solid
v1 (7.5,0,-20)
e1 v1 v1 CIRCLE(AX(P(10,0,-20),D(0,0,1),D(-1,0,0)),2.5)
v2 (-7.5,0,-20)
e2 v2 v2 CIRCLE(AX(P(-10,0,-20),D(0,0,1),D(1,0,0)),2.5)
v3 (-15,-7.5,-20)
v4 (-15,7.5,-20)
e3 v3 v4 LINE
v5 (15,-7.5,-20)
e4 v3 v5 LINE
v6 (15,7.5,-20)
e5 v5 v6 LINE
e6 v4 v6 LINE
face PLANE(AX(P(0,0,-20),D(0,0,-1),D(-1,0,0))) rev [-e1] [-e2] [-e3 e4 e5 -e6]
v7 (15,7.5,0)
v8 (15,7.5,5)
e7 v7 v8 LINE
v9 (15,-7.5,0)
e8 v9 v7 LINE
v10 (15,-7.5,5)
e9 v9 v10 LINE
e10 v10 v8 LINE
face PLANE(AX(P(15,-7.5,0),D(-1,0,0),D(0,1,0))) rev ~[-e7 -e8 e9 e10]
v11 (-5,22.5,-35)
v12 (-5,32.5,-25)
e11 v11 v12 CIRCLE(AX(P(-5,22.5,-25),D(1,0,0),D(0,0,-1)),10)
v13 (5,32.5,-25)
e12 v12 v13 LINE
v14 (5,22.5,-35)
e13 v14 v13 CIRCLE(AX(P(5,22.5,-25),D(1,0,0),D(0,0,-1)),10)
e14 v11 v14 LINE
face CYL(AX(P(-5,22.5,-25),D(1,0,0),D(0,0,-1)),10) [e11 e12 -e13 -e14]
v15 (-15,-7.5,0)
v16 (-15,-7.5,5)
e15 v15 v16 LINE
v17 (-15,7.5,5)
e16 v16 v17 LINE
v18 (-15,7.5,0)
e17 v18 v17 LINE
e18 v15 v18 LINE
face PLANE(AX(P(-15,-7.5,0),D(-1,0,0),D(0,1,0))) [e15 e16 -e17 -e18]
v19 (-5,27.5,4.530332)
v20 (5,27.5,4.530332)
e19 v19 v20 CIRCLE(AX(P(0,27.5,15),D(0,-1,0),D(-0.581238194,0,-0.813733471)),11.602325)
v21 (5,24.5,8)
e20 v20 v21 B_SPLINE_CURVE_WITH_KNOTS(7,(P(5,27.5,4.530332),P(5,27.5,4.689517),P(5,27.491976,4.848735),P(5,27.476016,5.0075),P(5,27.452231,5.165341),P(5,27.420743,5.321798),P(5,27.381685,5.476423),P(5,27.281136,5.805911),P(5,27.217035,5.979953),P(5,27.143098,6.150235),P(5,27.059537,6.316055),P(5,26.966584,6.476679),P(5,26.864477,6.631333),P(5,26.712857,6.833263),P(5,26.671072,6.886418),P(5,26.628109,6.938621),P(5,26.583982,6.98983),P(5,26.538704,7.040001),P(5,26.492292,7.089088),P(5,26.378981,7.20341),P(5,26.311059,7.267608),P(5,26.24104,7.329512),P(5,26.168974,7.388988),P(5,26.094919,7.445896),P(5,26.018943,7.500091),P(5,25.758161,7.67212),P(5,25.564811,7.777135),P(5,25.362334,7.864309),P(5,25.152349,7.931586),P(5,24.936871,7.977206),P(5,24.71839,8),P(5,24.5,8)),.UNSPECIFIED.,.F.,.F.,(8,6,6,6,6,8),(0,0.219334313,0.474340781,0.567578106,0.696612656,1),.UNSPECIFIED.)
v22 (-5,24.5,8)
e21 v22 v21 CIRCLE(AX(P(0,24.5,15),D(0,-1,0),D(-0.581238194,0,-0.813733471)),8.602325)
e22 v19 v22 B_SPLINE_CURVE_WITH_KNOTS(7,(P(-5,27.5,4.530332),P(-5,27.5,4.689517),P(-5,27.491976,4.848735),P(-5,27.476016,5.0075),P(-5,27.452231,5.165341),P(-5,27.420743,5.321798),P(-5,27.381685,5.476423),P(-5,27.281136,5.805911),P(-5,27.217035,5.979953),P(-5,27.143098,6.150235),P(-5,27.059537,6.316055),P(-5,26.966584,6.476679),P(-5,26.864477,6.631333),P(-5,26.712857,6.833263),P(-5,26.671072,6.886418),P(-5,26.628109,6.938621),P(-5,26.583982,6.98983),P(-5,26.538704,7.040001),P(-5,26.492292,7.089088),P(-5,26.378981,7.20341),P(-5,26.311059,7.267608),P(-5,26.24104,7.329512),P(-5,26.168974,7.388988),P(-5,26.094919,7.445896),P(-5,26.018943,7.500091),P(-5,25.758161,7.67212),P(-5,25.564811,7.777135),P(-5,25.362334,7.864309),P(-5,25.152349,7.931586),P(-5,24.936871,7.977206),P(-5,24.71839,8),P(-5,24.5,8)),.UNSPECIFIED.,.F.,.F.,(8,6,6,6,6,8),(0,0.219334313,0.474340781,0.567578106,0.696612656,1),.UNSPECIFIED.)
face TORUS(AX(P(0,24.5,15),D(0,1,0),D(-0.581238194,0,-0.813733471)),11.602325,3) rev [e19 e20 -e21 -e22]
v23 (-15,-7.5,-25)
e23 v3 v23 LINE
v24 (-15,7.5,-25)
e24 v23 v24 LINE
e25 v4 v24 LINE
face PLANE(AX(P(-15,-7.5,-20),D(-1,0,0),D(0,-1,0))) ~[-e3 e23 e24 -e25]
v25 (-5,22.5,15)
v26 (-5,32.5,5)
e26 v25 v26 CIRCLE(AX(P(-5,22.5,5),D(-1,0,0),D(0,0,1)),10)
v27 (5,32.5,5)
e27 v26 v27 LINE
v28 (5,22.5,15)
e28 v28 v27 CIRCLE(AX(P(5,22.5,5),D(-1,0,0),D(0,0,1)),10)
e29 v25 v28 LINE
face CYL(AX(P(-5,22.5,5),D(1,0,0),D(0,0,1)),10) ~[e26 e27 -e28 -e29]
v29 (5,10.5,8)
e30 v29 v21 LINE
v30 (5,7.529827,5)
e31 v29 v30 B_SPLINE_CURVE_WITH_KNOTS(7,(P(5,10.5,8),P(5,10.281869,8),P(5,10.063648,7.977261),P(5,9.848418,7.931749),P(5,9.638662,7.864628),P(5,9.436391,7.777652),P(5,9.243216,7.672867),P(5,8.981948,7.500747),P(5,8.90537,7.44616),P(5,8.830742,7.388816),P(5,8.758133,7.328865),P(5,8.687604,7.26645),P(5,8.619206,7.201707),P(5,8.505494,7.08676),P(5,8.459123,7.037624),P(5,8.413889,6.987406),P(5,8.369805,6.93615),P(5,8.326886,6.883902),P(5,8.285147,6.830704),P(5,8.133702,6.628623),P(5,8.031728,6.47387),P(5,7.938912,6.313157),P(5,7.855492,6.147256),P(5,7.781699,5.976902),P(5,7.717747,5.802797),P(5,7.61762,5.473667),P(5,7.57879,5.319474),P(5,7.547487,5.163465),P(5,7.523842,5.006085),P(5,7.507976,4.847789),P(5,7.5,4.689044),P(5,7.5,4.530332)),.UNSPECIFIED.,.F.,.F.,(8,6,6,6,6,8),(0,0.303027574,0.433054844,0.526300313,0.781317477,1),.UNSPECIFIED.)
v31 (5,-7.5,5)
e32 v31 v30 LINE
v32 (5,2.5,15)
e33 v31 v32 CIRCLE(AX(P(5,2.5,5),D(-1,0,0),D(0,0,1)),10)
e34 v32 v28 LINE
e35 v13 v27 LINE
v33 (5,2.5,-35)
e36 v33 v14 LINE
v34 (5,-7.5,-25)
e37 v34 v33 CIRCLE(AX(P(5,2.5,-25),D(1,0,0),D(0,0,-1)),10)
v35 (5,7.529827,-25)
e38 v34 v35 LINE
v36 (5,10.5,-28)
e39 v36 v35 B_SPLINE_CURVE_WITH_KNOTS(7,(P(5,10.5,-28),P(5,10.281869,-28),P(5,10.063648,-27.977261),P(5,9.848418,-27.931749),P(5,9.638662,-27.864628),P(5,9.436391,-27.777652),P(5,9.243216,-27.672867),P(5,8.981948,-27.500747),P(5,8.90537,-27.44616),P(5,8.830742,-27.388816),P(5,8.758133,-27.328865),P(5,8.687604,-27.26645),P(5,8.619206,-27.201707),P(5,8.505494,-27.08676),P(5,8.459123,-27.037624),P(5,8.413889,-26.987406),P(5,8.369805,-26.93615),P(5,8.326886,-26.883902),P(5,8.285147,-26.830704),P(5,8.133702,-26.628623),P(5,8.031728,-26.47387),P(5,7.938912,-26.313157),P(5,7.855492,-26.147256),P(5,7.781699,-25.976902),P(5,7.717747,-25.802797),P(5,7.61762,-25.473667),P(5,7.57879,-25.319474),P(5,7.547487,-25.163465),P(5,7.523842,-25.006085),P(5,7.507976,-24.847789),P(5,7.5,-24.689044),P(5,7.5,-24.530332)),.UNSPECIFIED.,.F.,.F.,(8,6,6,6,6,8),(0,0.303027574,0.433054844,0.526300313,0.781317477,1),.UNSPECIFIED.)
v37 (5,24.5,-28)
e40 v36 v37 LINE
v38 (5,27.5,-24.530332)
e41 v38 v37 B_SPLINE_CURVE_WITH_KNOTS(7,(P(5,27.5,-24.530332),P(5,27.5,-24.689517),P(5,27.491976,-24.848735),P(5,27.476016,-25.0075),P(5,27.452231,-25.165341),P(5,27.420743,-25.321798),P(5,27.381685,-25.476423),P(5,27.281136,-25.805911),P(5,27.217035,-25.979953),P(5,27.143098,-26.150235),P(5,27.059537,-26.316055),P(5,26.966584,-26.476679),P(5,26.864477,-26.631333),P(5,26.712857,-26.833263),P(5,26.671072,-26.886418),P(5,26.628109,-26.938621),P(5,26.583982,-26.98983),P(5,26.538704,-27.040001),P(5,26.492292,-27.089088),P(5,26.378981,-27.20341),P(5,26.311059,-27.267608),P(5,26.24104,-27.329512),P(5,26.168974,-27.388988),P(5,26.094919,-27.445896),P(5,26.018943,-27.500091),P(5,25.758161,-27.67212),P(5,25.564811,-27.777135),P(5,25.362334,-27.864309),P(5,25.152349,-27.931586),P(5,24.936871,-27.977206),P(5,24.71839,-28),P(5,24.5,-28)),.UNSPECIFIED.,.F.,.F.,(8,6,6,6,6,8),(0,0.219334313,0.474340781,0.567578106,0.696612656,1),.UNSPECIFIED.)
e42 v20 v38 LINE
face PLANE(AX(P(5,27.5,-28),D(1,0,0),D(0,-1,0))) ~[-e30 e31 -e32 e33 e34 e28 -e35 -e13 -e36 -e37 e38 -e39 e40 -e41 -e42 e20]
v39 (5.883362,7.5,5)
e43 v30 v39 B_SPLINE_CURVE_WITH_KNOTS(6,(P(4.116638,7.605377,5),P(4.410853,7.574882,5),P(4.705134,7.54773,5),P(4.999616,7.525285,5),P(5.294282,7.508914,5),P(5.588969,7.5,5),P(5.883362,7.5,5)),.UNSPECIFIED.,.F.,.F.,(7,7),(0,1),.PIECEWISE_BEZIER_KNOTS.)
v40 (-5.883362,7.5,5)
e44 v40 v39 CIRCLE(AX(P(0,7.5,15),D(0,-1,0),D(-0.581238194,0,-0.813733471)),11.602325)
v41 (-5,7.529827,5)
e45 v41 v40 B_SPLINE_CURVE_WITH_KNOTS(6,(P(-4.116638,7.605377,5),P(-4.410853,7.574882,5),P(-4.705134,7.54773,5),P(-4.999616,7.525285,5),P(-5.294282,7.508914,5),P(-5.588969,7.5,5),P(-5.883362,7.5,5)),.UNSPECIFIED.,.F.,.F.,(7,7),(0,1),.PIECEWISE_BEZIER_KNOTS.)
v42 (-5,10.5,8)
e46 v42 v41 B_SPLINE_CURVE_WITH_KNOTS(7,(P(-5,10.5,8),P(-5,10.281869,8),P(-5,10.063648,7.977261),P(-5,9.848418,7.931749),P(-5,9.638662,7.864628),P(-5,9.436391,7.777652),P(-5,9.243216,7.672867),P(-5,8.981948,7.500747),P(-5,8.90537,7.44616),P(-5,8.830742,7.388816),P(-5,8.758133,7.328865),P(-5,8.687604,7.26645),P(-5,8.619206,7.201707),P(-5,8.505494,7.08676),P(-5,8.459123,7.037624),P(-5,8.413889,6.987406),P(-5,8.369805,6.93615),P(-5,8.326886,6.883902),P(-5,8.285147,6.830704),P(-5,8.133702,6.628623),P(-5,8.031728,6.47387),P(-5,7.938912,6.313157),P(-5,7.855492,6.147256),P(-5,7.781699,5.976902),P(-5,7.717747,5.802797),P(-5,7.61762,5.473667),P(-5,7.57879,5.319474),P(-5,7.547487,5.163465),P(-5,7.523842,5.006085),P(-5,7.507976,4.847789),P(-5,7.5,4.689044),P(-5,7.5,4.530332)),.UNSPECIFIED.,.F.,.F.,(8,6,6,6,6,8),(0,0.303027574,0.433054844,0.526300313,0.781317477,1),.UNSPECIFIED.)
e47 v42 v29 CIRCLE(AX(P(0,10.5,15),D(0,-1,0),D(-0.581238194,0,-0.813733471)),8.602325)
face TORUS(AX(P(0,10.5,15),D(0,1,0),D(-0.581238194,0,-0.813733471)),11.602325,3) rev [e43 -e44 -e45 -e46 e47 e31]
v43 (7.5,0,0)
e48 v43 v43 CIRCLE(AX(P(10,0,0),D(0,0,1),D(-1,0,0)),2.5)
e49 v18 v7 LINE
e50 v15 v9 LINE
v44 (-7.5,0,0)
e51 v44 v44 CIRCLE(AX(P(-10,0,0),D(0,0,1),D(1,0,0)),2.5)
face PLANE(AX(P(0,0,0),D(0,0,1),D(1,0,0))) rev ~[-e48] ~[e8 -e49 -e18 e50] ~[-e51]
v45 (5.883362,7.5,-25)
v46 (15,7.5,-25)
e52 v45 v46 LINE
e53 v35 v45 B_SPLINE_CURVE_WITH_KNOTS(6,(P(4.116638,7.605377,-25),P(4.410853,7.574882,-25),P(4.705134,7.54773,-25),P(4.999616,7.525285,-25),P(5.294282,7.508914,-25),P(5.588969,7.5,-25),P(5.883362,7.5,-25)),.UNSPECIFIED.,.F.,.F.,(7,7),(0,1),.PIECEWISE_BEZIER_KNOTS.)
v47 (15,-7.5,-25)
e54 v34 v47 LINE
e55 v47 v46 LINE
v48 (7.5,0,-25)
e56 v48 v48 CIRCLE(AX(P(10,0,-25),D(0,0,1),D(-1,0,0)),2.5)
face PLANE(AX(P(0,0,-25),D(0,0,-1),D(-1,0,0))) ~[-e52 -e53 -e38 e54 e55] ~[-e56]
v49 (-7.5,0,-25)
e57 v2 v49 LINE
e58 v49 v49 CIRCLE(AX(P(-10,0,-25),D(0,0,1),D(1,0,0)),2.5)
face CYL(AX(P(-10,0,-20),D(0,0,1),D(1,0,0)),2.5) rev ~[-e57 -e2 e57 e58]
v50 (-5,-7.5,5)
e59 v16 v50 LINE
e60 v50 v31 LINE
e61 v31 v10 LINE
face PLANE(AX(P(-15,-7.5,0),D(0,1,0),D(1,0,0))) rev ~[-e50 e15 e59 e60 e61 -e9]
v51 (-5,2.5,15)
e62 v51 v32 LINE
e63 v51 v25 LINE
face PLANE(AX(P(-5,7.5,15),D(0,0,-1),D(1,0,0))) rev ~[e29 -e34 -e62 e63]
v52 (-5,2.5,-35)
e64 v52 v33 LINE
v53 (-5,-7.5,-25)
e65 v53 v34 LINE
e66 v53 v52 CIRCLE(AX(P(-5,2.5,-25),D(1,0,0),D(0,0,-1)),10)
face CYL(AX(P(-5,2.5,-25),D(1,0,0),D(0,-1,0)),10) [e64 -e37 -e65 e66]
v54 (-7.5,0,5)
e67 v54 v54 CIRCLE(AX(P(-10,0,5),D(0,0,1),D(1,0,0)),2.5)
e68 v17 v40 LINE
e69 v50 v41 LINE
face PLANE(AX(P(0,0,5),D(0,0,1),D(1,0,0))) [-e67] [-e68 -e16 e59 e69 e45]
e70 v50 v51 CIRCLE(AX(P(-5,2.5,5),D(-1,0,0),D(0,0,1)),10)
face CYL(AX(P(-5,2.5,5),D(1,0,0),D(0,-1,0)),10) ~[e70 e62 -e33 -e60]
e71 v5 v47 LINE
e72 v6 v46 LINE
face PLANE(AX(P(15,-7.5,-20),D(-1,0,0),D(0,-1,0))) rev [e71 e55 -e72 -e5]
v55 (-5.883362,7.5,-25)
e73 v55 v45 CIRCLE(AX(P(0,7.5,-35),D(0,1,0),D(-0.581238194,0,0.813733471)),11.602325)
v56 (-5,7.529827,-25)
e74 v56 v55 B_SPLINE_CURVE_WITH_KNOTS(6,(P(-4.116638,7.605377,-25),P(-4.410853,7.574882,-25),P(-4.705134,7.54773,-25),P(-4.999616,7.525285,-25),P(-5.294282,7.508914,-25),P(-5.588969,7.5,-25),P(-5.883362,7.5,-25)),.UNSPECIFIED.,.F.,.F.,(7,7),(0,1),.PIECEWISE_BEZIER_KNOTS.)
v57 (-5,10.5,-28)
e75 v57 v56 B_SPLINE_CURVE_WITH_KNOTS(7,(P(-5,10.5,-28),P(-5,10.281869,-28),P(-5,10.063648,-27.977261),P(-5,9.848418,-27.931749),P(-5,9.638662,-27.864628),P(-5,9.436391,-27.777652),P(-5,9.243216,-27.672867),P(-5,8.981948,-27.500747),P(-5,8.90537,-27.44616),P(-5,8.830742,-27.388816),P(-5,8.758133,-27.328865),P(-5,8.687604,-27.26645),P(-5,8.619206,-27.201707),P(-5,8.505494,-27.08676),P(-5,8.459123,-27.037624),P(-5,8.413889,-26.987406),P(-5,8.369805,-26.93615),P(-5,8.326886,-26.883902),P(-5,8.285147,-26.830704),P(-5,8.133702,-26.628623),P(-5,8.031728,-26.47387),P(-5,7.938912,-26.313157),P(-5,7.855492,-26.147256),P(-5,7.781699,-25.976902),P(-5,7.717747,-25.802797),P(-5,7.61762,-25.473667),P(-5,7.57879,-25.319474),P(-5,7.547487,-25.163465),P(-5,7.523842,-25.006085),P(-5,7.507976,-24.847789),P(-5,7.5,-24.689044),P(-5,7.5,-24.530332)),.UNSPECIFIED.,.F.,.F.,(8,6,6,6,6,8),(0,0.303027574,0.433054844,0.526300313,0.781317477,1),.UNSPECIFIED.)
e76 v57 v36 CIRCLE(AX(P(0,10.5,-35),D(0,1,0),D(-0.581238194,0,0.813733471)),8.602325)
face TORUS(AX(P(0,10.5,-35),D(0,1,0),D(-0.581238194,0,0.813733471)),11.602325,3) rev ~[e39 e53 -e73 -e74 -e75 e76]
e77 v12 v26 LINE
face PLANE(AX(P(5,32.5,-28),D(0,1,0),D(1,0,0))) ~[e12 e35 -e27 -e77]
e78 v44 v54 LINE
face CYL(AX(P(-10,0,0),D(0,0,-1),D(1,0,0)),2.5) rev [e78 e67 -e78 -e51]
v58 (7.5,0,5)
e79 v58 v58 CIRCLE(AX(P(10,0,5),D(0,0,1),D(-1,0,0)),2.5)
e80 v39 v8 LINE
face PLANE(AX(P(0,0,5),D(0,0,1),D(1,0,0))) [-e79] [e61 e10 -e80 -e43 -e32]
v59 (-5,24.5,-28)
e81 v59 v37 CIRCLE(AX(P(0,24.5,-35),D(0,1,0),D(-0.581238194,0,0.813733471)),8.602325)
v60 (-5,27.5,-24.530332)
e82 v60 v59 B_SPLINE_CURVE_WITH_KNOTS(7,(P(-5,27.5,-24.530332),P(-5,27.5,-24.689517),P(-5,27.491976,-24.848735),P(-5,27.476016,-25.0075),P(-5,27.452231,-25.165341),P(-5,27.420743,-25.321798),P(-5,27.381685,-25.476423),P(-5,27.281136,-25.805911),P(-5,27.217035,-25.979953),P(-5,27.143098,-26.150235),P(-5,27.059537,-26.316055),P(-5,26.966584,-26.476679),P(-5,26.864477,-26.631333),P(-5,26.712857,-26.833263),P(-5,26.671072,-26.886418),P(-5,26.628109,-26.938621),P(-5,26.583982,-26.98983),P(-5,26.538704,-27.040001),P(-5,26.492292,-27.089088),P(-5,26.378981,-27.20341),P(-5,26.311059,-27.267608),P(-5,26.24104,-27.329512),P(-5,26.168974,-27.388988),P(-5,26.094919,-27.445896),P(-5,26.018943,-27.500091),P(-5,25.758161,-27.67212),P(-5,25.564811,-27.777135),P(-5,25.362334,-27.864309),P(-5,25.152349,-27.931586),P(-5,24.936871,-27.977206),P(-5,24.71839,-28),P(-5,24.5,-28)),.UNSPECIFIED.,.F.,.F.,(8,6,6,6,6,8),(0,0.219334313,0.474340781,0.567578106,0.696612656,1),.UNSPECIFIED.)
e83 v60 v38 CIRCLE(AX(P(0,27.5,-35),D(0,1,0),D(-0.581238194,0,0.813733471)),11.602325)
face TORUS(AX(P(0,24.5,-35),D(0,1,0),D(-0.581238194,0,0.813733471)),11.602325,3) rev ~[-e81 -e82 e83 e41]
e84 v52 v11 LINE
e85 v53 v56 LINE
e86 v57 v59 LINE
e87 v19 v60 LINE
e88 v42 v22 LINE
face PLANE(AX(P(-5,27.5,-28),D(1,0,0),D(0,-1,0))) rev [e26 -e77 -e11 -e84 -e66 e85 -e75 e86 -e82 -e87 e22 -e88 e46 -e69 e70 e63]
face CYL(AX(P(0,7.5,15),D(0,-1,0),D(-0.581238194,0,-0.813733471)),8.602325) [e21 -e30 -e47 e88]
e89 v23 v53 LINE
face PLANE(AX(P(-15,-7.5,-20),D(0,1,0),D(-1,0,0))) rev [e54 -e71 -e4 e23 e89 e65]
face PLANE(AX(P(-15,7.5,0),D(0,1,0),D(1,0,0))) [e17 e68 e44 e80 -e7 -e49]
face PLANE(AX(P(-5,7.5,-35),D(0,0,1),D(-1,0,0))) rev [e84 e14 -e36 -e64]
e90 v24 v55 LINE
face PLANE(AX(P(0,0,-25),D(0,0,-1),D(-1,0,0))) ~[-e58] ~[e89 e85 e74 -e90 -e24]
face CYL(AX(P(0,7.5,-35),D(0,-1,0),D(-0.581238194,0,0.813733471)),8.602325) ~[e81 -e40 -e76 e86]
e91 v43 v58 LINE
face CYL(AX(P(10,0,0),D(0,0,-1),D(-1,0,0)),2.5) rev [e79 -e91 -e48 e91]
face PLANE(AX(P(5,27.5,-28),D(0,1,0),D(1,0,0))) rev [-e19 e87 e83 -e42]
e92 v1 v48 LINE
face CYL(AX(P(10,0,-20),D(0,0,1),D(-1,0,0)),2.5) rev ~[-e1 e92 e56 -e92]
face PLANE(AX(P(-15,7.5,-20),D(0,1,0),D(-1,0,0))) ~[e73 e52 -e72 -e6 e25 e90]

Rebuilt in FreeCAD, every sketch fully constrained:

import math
import FreeCAD as App
import Part
import Sketcher
Q = App.Units.Quantity


def edges_at(feature, points):
    """Names of the edges that pass closest to the given points."""
    edges = feature.Shape.Edges
    near = lambda p: min(range(len(edges)), key=lambda i: edges[i].distToShape(Part.Vertex(*p))[0])
    return sorted({f"Edge{near(p) + 1}" for p in points})

doc = App.newDocument("Part")
body = doc.addObject("PartDesign::Body", "Body")

# Sketch on XY plane
sketch1 = body.newObject("Sketcher::SketchObject", "Sketch")
sketch1.AttachmentSupport = (doc.getObject("XY_Plane"), [""])
sketch1.MapMode = "FlatFace"
sketch1.addGeometry([
    Part.LineSegment(App.Vector(-15, 7.5, 0), App.Vector(-15, -7.5, 0)),  # 0
    Part.LineSegment(App.Vector(-15, -7.5, 0), App.Vector(15, -7.5, 0)),  # 1
    Part.LineSegment(App.Vector(15, -7.5, 0), App.Vector(15, 7.5, 0)),  # 2
    Part.LineSegment(App.Vector(15, 7.5, 0), App.Vector(-15, 7.5, 0)),  # 3
    Part.Circle(App.Vector(-10, 0, 0), App.Vector(0, 0, 1), 2.5),  # 4
    Part.Circle(App.Vector(10, 0, 0), App.Vector(0, 0, 1), 2.5),  # 5
], False)
sketch1.addConstraint([
    Sketcher.Constraint("Coincident", 0, 2, 1, 1),
    Sketcher.Constraint("Coincident", 1, 2, 2, 1),
    Sketcher.Constraint("Coincident", 2, 2, 3, 1),
    Sketcher.Constraint("Coincident", 3, 2, 0, 1),
    Sketcher.Constraint("Vertical", 0),
    Sketcher.Constraint("Horizontal", 1),
    Sketcher.Constraint("Vertical", 2),
    Sketcher.Constraint("Horizontal", 3),
    Sketcher.Constraint("Equal", 4, 5),
    Sketcher.Constraint("Symmetric", 4, 3, 5, 3, -1, 1),
    Sketcher.Constraint("Symmetric", 0, 2, 2, 2, -1, 1),
    Sketcher.Constraint("PointOnObject", 4, 3, -1),
    Sketcher.Constraint("Diameter", 4, Q("5 mm")),
    Sketcher.Constraint("DistanceX", 1, 1, 1, 2, Q("30 mm")),
    Sketcher.Constraint("DistanceY", 0, 2, 0, 1, Q("15 mm")),
    Sketcher.Constraint("DistanceX", 4, 3, -1, 1, Q("10 mm")),
])
pad1 = body.newObject("PartDesign::Pad", "Pad")
pad1.Profile = sketch1
pad1.Length = 5

# Sketch on XY plane
sketch2 = body.newObject("Sketcher::SketchObject", "Sketch001")
sketch2.AttachmentSupport = (doc.getObject("XY_Plane"), [""])
sketch2.MapMode = "FlatFace"
sketch2.AttachmentOffset = App.Placement(App.Vector(0, 0, 5), App.Rotation())
sketch2.addGeometry([
    Part.LineSegment(App.Vector(-5, 8, 0), App.Vector(-5, -8, 0)),
    Part.LineSegment(App.Vector(-5, -8, 0), App.Vector(5, -8, 0)),
    Part.LineSegment(App.Vector(5, -8, 0), App.Vector(5, 8, 0)),
    Part.LineSegment(App.Vector(5, 8, 0), App.Vector(-5, 8, 0)),
], False)
sketch2.addConstraint([
    Sketcher.Constraint("Coincident", 0, 2, 1, 1),
    Sketcher.Constraint("Coincident", 1, 2, 2, 1),
    Sketcher.Constraint("Coincident", 2, 2, 3, 1),
    Sketcher.Constraint("Coincident", 3, 2, 0, 1),
    Sketcher.Constraint("Vertical", 0),
    Sketcher.Constraint("Horizontal", 1),
    Sketcher.Constraint("Vertical", 2),
    Sketcher.Constraint("Horizontal", 3),
    Sketcher.Constraint("Symmetric", 0, 2, 2, 2, -1, 1),
    Sketcher.Constraint("DistanceX", 1, 1, 1, 2, Q("10 mm")),
    Sketcher.Constraint("DistanceY", 0, 2, 0, 1, Q("15 mm")),
])
pad2 = body.newObject("PartDesign::Pad", "Pad001")
pad2.Profile = sketch2
pad2.Length = 10

# Sketch on XZ plane
sketch3 = body.newObject("Sketcher::SketchObject", "Sketch002")
sketch3.AttachmentSupport = (doc.getObject("XZ_Plane"), [""])
sketch3.MapMode = "FlatFace"
sketch3.AttachmentOffset = App.Placement(App.Vector(0, 0, -7.5), App.Rotation())
sketch3.addGeometry([
    Part.LineSegment(App.Vector(-5, 8, 0), App.Vector(-5, 15, 0)),
    Part.LineSegment(App.Vector(-5, 15, 0), App.Vector(5, 15, 0)),
    Part.LineSegment(App.Vector(5, 15, 0), App.Vector(5, 8, 0)),
    Part.LineSegment(App.Vector(5, 8, 0), App.Vector(-5, 8, 0)),
], False)
sketch3.addConstraint([
    Sketcher.Constraint("Coincident", 0, 2, 1, 1),
    Sketcher.Constraint("Coincident", 1, 2, 2, 1),
    Sketcher.Constraint("Coincident", 2, 2, 3, 1),
    Sketcher.Constraint("Coincident", 3, 2, 0, 1),
    Sketcher.Constraint("Vertical", 0),
    Sketcher.Constraint("Horizontal", 1),
    Sketcher.Constraint("Vertical", 2),
    Sketcher.Constraint("Horizontal", 3),
    Sketcher.Constraint("DistanceX", 1, 1, 1, 2, Q("10 mm")),
    Sketcher.Constraint("DistanceY", 0, 1, 0, 2, Q("7 mm")),
    Sketcher.Constraint("DistanceX", 0, 2, -1, 1, Q("5 mm")),
    Sketcher.Constraint("DistanceY", -1, 1, 0, 2, Q("15 mm")),
])
pad3 = body.newObject("PartDesign::Pad", "Pad002")
pad3.Profile = sketch3
pad3.Length = 25
pad3.Reversed = True

# Sketch on XZ plane
sketch4 = body.newObject("Sketcher::SketchObject", "Sketch003")
sketch4.AttachmentSupport = (doc.getObject("XZ_Plane"), [""])
sketch4.MapMode = "FlatFace"
sketch4.AttachmentOffset = App.Placement(App.Vector(0, 0, -7.5), App.Rotation())
sketch4.addGeometry([
    Part.ArcOfCircle(Part.Circle(App.Vector(0, 15, 0), App.Vector(0, 0, 1), 9), math.radians(-126), math.radians(-54)),
    Part.LineSegment(App.Vector(-5, 8, 0), App.Vector(5, 8, 0)),
], False)
sketch4.addConstraint([
    Sketcher.Constraint("Coincident", 0, 1, 1, 1),
    Sketcher.Constraint("Coincident", 1, 2, 0, 2),
    Sketcher.Constraint("Horizontal", 1),
    Sketcher.Constraint("PointOnObject", 0, 3, -2),
    Sketcher.Constraint("DistanceX", 1, 1, 1, 2, Q("10 mm")),
    Sketcher.Constraint("DistanceY", -1, 1, 0, 3, Q("15 mm")),
    Sketcher.Constraint("DistanceY", -1, 1, 0, 1, Q("8 mm")),
])
pad4 = body.newObject("PartDesign::Pad", "Pad003")
pad4.Profile = sketch4
pad4.Length = 20
pad4.Reversed = True

# Sketch on XY plane
sketch5 = body.newObject("Sketcher::SketchObject", "Sketch004")
sketch5.AttachmentSupport = (doc.getObject("XY_Plane"), [""])
sketch5.MapMode = "FlatFace"
sketch5.AttachmentOffset = App.Placement(App.Vector(0, 0, 8), App.Rotation())
sketch5.addGeometry([
    Part.LineSegment(App.Vector(5, 32, 0), App.Vector(5, 28, 0)),
    Part.LineSegment(App.Vector(5, 28, 0), App.Vector(-5, 28, 0)),
    Part.LineSegment(App.Vector(-5, 28, 0), App.Vector(-5, 32, 0)),
    Part.LineSegment(App.Vector(-5, 32, 0), App.Vector(5, 32, 0)),
], False)
sketch5.addConstraint([
    Sketcher.Constraint("Coincident", 0, 2, 1, 1),
    Sketcher.Constraint("Coincident", 1, 2, 2, 1),
    Sketcher.Constraint("Coincident", 2, 2, 3, 1),
    Sketcher.Constraint("Coincident", 3, 2, 0, 1),
    Sketcher.Constraint("Vertical", 0),
    Sketcher.Constraint("Horizontal", 1),
    Sketcher.Constraint("Vertical", 2),
    Sketcher.Constraint("Horizontal", 3),
    Sketcher.Constraint("DistanceX", 1, 2, 1, 1, Q("10 mm")),
    Sketcher.Constraint("DistanceY", 0, 2, 0, 1, Q("5 mm")),
    Sketcher.Constraint("DistanceX", -1, 1, 0, 2, Q("5 mm")),
    Sketcher.Constraint("DistanceY", -1, 1, 0, 2, Q("27.5 mm")),
])
pad5 = body.newObject("PartDesign::Pad", "Pad004")
pad5.Profile = sketch5
pad5.Length = 18
pad5.Reversed = True
doc.recompute()

fillet = body.newObject("PartDesign::Fillet", "Fillet")
fillet.Base = (pad5, edges_at(pad5, [(0, -7.5, 15), (0, 32.5, 15)]))
fillet.Radius = 10
doc.recompute()

fillet2 = body.newObject("PartDesign::Fillet", "Fillet001")
fillet2.Base = (fillet, edges_at(fillet, [(0, 7.5, 6.398), (0, 27.5, 6.398)]))
fillet2.Radius = 3
body2 = doc.addObject("PartDesign::Body", "Body001")
doc.recompute()

body2.BaseFeature = body
doc.recompute()

mirroring = doc.addObject("Part::Mirroring", "Mirroring")
mirroring.Source = body
mirroring.Base = App.Vector(0, 0, -10)
mirroring.Normal = App.Vector(0, 0, -1)
body3 = doc.addObject("PartDesign::Body", "Body002")
body3.BaseFeature = mirroring
boolean = body2.newObject("PartDesign::Boolean", "Boolean")
boolean.Type = "Fuse"
boolean.addObjects([body3])
doc.recompute()
mirroring.Visibility = False

doc.recompute()
